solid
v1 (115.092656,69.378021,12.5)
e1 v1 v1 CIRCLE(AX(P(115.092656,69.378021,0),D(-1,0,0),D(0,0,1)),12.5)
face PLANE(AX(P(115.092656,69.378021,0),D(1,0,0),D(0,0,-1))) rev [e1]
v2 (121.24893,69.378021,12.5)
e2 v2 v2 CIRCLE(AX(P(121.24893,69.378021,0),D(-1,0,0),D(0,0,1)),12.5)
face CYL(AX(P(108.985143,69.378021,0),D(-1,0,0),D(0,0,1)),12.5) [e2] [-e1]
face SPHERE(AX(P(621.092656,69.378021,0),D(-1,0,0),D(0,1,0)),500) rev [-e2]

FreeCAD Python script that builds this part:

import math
import FreeCAD as App
import Part
import Sketcher

V = App.Vector

doc = App.newDocument("Part")
params = doc.addObject("Spreadsheet::Sheet", "Params")
for row, (alias, value) in enumerate([
    ("sketch1_width", "6 mm"),
    ("sketch1_height", "12.5 mm"),
    ("revolution_angle", "360 deg"),
], start=1):
    params.set(f"A{row}", alias)
    params.set(f"B{row}", "=" + value)
    params.setAlias(f"B{row}", alias)

body = doc.addObject("PartDesign::Body", "Body")

# Sketch on XY plane
sketch1 = doc.addObject("Sketcher::SketchObject", "Sketch")
body.addObject(sketch1)
sketch1.AttachmentSupport = (doc.XY_Plane, [""])
sketch1.MapMode = "FlatFace"
sketch1.addGeometry([
    Part.LineSegment(V(115.092656, 81.878021, 0), V(115.092656, 69.378021, 0)),
    Part.LineSegment(V(115.092656, 69.378021, 0), V(121.092656, 69.378021, 0)),
    Part.ArcOfCircle(Part.Circle(V(621.092661, 69.378021, 0), V(0, 0, 1), 500.000006), math.radians(178.567456), math.radians(180)),
    Part.LineSegment(V(121.24893, 81.878021, 0), V(115.092656, 81.878021, 0)),
], False)
sketch1.addGeometry(Part.LineSegment(V(115.092656, 69.378021, 0), V(621.092661, 69.378021, 0)), True)  # axis
sketch1.addConstraint([
    Sketcher.Constraint("Coincident", 0, 2, 1, 1),
    Sketcher.Constraint("Coincident", 1, 2, 2, 2),
    Sketcher.Constraint("Coincident", 2, 1, 3, 1),
    Sketcher.Constraint("Coincident", 3, 2, 0, 1),
    Sketcher.Constraint("Vertical", 0),
    Sketcher.Constraint("Horizontal", 1),
    Sketcher.Constraint("Horizontal", 3),
    Sketcher.Constraint("Horizontal", 4),
    Sketcher.Constraint("Coincident", 4, 1, 0, 2),
    Sketcher.Constraint("Coincident", 4, 2, 2, 3),
    Sketcher.Constraint("DistanceX", 1, 1, 1, 2, 6.0),
    Sketcher.Constraint("DistanceY", 0, 2, 0, 1, 12.5),
    Sketcher.Constraint("Radius", 2, 500.000006),
    Sketcher.Constraint("DistanceX", -1, 1, 2, 3, 621.092661),
    Sketcher.Constraint("DistanceY", -1, 1, 2, 3, 69.378021),
])
sketch1.setExpression("Constraints[10]", "Params.sketch1_width")
sketch1.setExpression("Constraints[11]", "Params.sketch1_height")
revolution = doc.addObject("PartDesign::Revolution", "Revolution")
body.addObject(revolution)
revolution.Profile = sketch1
revolution.ReferenceAxis = (sketch1, ["Axis0"])
revolution.setExpression("Angle", "Params.revolution_angle")

doc.recompute()
